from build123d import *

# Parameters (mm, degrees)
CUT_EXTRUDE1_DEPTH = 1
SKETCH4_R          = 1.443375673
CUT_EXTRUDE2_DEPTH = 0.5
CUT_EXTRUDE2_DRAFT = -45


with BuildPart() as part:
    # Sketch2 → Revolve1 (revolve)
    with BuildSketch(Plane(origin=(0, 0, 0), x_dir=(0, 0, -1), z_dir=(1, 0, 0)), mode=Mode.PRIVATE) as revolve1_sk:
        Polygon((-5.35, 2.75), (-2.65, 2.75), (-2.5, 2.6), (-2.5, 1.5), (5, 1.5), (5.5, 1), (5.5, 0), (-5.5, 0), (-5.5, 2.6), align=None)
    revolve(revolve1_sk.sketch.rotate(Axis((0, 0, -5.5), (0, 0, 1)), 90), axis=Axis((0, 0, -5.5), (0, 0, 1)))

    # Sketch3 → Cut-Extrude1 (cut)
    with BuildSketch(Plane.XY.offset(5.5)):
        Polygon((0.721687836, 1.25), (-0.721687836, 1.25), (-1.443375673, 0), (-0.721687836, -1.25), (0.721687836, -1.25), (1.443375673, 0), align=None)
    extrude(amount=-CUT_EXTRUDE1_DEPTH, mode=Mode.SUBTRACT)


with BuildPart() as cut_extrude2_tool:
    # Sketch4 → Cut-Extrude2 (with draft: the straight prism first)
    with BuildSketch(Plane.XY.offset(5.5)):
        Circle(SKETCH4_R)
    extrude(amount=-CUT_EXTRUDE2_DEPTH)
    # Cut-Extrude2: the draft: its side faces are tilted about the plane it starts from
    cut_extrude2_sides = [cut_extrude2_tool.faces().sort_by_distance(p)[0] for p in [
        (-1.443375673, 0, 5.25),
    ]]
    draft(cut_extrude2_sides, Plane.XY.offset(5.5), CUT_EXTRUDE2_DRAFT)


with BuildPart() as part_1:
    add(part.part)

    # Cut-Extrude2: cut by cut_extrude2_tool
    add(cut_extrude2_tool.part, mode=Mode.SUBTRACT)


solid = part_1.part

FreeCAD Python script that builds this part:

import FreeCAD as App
import Part
import Sketcher

V = App.Vector
Q = App.Units.Quantity


def faces_at(feature, points):
    """Names of the faces that lie closest to the given points."""
    faces = feature.Shape.Faces
    near = lambda p: min(range(len(faces)), key=lambda i: faces[i].distToShape(Part.Vertex(*p))[0])
    return sorted({f"Face{near(p) + 1}" for p in points})


def add_polygon(sketch, points):
    """Adds a closed chain of lines whose ends are joined by coincident constraints."""
    first, n = sketch.GeometryCount, len(points)
    for a, b in zip(points, points[1:] + points[:1]):
        sketch.addGeometry(Part.LineSegment(App.Vector(*a, 0), App.Vector(*b, 0)), False)
    for i in range(n):
        sketch.addConstraint(Sketcher.Constraint("Coincident", first + i, 2, first + (i + 1) % n, 1))

doc = App.newDocument("Part")
body = doc.addObject("PartDesign::Body", "Body")

sketch1 = body.newObject("Sketcher::SketchObject", "Sketch")
sketch1.AttachmentSupport = (doc.getObject("YZ_Plane"), [""])
sketch1.MapMode = "FlatFace"
add_polygon(sketch1, [(2.75, 2.65), (2.75, 5.35), (2.6, 5.5), (0, 5.5), (0, -5.5), (1, -5.5), (1.5, -5), (1.5, 2.5), (2.6, 2.5)])
sketch1.addConstraint([
    Sketcher.Constraint("Vertical", 0),
    Sketcher.Constraint("Horizontal", 2),
    Sketcher.Constraint("Vertical", 3),
    Sketcher.Constraint("Horizontal", 4),
    Sketcher.Constraint("Vertical", 6),
    Sketcher.Constraint("Horizontal", 7),
    Sketcher.Constraint("Symmetric", 2, 2, 3, 2, -1, 1),
    Sketcher.Constraint("Perpendicular", 1, 5),
    Sketcher.Constraint("Parallel", 5, 8),
    Sketcher.Constraint("Vertical", 1, 2, 7, 2),
    Sketcher.Constraint("Equal", 1, 8),
    Sketcher.Constraint("DistanceX", 4, 1, 4, 2, Q("1 mm")),
    Sketcher.Constraint("DistanceY", 3, 2, 3, 1, Q("11 mm")),
    Sketcher.Constraint("DistanceX", 2, 2, 2, 1, Q("2.6 mm")),
    Sketcher.Constraint("DistanceX", 7, 1, 7, 2, Q("1.1 mm")),
    Sketcher.Constraint("DistanceY", 0, 1, 0, 2, Q("2.7 mm")),
    Sketcher.Constraint("DistanceY", 6, 1, 6, 2, Q("7.5 mm")),
])
revolution = body.newObject("PartDesign::Revolution", "Revolution")
revolution.Profile = sketch1
revolution.ReferenceAxis = (sketch1, ["V_Axis"])
revolution.Angle = 360

sketch2 = body.newObject("Sketcher::SketchObject", "Sketch001")
sketch2.AttachmentSupport = (doc.getObject("XY_Plane"), [""])
sketch2.MapMode = "FlatFace"
sketch2.AttachmentOffset = App.Placement(V(0, 0, 5.5), App.Rotation())
add_polygon(sketch2, [(0.721688, 1.25), (-0.721688, 1.25), (-1.443376, 0), (-0.721688, -1.25), (0.721688, -1.25), (1.443376, 0)])
sketch2.addConstraint([
    Sketcher.Constraint("Horizontal", 0),
    Sketcher.Constraint("Horizontal", 3),
    Sketcher.Constraint("Symmetric", 0, 2, 3, 2, -1, 1),
    Sketcher.Constraint("Symmetric", 1, 2, 4, 2, -1, 1),
    Sketcher.Constraint("PointOnObject", 1, 2, -1),
    Sketcher.Constraint("Parallel", 2, 5),
    Sketcher.Constraint("Vertical", 0, 2, 2, 2),
    Sketcher.Constraint("Angle", 1, Q("-120 deg")),
    Sketcher.Constraint("DistanceY", 2, 2, 0, 2, Q("2.5 mm")),
    Sketcher.Constraint("DistanceX", 0, 2, 0, 1, Q("1.443376 mm")),
])
pocket1 = body.newObject("PartDesign::Pocket", "Pocket")
pocket1.Profile = sketch2
pocket1.Length = 1
body2 = doc.addObject("PartDesign::Body", "Body001")

sketch3 = body2.newObject("Sketcher::SketchObject", "Sketch002")
sketch3.AttachmentSupport = (doc.getObject("XY_Plane001"), [""])
sketch3.MapMode = "FlatFace"
sketch3.AttachmentOffset = App.Placement(V(0, 0, 5.5), App.Rotation())
sketch3.addGeometry(Part.Circle(V(0, 0, 0), V(0, 0, 1), 1.443376), False)
sketch3.addConstraint([
    Sketcher.Constraint("Coincident", 0, 3, -1, 1),
    Sketcher.Constraint("Diameter", 0, Q("2.886751 mm")),
])
pad1 = body2.newObject("PartDesign::Pad", "Pad")
pad1.Profile = sketch3
pad1.Length = 0.5
pad1.Reversed = True
doc.recompute()

datumplane = body2.newObject("PartDesign::Plane", "DatumPlane")
datumplane.AttachmentSupport = (doc.getObject("XY_Plane001"), [""])
datumplane.MapMode = "FlatFace"
datumplane.AttachmentOffset = App.Placement(V(0, 0, 5.5), App.Rotation())
draft = body2.newObject("PartDesign::Draft", "Draft")
draft.Base = (pad1, faces_at(pad1, [(-1.443, 0, 5.25)]))
draft.NeutralPlane = (datumplane, [""])
draft.Angle = 45
draft.Reversed = True
doc.recompute()

boolean = body.newObject("PartDesign::Boolean", "Boolean")
boolean.Type = "Cut"
boolean.addObjects([body2])

doc.recompute()
